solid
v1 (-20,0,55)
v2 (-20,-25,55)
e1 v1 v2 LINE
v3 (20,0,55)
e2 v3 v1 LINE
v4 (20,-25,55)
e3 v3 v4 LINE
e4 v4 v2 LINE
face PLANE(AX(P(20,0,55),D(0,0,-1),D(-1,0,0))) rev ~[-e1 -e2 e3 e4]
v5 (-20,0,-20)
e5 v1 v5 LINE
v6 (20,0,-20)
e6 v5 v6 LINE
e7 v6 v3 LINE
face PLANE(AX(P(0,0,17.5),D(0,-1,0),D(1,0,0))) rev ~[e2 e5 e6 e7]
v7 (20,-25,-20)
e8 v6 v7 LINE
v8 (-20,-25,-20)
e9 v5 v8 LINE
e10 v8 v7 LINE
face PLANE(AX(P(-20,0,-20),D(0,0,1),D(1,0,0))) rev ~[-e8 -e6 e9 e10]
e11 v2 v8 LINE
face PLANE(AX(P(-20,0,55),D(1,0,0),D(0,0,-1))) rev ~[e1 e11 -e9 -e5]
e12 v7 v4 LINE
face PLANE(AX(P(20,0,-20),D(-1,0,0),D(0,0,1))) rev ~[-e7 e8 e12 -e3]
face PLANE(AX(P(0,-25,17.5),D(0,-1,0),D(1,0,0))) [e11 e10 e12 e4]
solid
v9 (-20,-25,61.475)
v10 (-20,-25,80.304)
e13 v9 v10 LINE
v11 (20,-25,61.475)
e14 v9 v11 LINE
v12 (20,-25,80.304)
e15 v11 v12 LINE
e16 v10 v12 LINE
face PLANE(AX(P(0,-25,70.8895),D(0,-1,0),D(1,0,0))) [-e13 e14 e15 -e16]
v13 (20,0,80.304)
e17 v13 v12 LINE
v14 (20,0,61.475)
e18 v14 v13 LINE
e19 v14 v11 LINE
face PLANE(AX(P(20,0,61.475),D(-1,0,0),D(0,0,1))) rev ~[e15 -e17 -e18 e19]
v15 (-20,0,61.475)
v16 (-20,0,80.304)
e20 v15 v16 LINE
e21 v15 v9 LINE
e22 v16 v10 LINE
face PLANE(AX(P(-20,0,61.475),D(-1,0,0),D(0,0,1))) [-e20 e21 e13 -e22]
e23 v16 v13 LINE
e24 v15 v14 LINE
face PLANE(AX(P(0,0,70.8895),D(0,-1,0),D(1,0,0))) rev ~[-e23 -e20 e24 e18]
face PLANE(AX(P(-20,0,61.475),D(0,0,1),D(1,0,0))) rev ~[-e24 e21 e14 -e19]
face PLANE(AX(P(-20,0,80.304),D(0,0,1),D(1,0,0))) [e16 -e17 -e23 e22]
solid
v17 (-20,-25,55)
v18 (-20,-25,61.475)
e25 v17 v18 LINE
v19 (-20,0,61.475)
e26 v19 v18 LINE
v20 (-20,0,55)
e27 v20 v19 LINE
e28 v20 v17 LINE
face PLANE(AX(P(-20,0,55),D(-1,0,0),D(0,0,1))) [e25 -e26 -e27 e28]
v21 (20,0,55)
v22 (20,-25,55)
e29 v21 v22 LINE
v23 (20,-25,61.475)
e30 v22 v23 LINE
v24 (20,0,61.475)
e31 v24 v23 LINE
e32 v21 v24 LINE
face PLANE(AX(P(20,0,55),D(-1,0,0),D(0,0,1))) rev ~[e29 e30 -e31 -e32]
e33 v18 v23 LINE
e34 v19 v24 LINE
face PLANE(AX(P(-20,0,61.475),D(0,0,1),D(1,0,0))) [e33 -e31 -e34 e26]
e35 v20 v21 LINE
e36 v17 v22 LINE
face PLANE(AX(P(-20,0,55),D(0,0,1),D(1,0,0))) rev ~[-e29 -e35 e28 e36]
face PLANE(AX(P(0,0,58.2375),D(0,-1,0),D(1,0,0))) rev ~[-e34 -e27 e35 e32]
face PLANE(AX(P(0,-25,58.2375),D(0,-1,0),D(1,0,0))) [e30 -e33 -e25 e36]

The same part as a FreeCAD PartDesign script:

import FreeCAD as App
import Part
import Sketcher
from FreeCAD import Vector
Q = App.Units.Quantity

doc = App.newDocument("Part")
body = doc.addObject("PartDesign::Body", "Body")

# Sketch on XZ plane
sketch1 = doc.addObject("Sketcher::SketchObject", "Sketch")
body.addObject(sketch1)
sketch1.AttachmentSupport = (doc.XZ_Plane, [""])
sketch1.MapMode = "FlatFace"
sketch1.addGeometry([
    Part.LineSegment(Vector(-20, 80.304, 0), Vector(-20, 61.475, 0)),
    Part.LineSegment(Vector(-20, 61.475, 0), Vector(20, 61.475, 0)),
    Part.LineSegment(Vector(20, 61.475, 0), Vector(20, 80.304, 0)),
    Part.LineSegment(Vector(20, 80.304, 0), Vector(-20, 80.304, 0)),
], False)
sketch1.addConstraint([
    Sketcher.Constraint("Coincident", 0, 2, 1, 1),
    Sketcher.Constraint("Coincident", 1, 2, 2, 1),
    Sketcher.Constraint("Coincident", 2, 2, 3, 1),
    Sketcher.Constraint("Coincident", 3, 2, 0, 1),
    Sketcher.Constraint("Vertical", 0),
    Sketcher.Constraint("Horizontal", 1),
    Sketcher.Constraint("Vertical", 2),
    Sketcher.Constraint("Horizontal", 3),
    Sketcher.Constraint("DistanceX", 1, 1, 1, 2, Q("40 mm")),
    Sketcher.Constraint("DistanceX", 0, 2, -1, 1, Q("20 mm")),
    Sketcher.Constraint("DistanceY", 0, 2, 0, 1, Q("18.829 mm")),
    Sketcher.Constraint("DistanceY", -1, 1, 0, 2, Q("61.475 mm")),
])
pad1 = doc.addObject("PartDesign::Pad", "Pad")
body.addObject(pad1)
pad1.Profile = sketch1
pad1.Length = 25
body2 = doc.addObject("PartDesign::Body", "Body001")

# Sketch on XZ plane
sketch2 = doc.addObject("Sketcher::SketchObject", "Sketch001")
body2.addObject(sketch2)
sketch2.AttachmentSupport = (doc.getObject("XZ_Plane001"), [""])
sketch2.MapMode = "FlatFace"
sketch2.addGeometry([
    Part.LineSegment(Vector(-20, 61.475, 0), Vector(-20, 55, 0)),
    Part.LineSegment(Vector(-20, 55, 0), Vector(20, 55, 0)),
    Part.LineSegment(Vector(20, 55, 0), Vector(20, 61.475, 0)),
    Part.LineSegment(Vector(20, 61.475, 0), Vector(-20, 61.475, 0)),
], False)
sketch2.addConstraint([
    Sketcher.Constraint("Coincident", 0, 2, 1, 1),
    Sketcher.Constraint("Coincident", 1, 2, 2, 1),
    Sketcher.Constraint("Coincident", 2, 2, 3, 1),
    Sketcher.Constraint("Coincident", 3, 2, 0, 1),
    Sketcher.Constraint("Vertical", 0),
    Sketcher.Constraint("Horizontal", 1),
    Sketcher.Constraint("Vertical", 2),
    Sketcher.Constraint("Horizontal", 3),
    Sketcher.Constraint("DistanceX", 1, 1, 1, 2, Q("40 mm")),
    Sketcher.Constraint("DistanceX", 0, 2, -1, 1, Q("20 mm")),
    Sketcher.Constraint("DistanceY", -1, 1, 0, 2, Q("55 mm")),
    Sketcher.Constraint("DistanceY", 0, 2, 0, 1, Q("6.475 mm")),
])
pad2 = doc.addObject("PartDesign::Pad", "Pad001")
body2.addObject(pad2)
pad2.Profile = sketch2
pad2.Length = 25
body3 = doc.addObject("PartDesign::Body", "Body002")

# Sketch on XZ plane
sketch3 = doc.addObject("Sketcher::SketchObject", "Sketch002")
body3.addObject(sketch3)
sketch3.AttachmentSupport = (doc.getObject("XZ_Plane002"), [""])
sketch3.MapMode = "FlatFace"
sketch3.addGeometry([
    Part.LineSegment(Vector(-20, -20, 0), Vector(20, -20, 0)),
    Part.LineSegment(Vector(20, -20, 0), Vector(20, 55, 0)),
    Part.LineSegment(Vector(20, 55, 0), Vector(-20, 55, 0)),
    Part.LineSegment(Vector(-20, 55, 0), Vector(-20, -20, 0)),
], False)
sketch3.addConstraint([
    Sketcher.Constraint("Coincident", 0, 2, 1, 1),
    Sketcher.Constraint("Coincident", 1, 2, 2, 1),
    Sketcher.Constraint("Coincident", 2, 2, 3, 1),
    Sketcher.Constraint("Coincident", 3, 2, 0, 1),
    Sketcher.Constraint("Horizontal", 0),
    Sketcher.Constraint("Vertical", 1),
    Sketcher.Constraint("Horizontal", 2),
    Sketcher.Constraint("Vertical", 3),
    Sketcher.Constraint("DistanceX", 0, 1, 0, 2, Q("40 mm")),
    Sketcher.Constraint("DistanceY", 1, 1, 1, 2, Q("75 mm")),
    Sketcher.Constraint("DistanceX", -1, 1, 0, 2, Q("20 mm")),
    Sketcher.Constraint("DistanceY", 0, 2, -1, 1, Q("20 mm")),
])
pad3 = doc.addObject("PartDesign::Pad", "Pad002")
body3.addObject(pad3)
pad3.Profile = sketch3
pad3.Length = 25

doc.recompute()
